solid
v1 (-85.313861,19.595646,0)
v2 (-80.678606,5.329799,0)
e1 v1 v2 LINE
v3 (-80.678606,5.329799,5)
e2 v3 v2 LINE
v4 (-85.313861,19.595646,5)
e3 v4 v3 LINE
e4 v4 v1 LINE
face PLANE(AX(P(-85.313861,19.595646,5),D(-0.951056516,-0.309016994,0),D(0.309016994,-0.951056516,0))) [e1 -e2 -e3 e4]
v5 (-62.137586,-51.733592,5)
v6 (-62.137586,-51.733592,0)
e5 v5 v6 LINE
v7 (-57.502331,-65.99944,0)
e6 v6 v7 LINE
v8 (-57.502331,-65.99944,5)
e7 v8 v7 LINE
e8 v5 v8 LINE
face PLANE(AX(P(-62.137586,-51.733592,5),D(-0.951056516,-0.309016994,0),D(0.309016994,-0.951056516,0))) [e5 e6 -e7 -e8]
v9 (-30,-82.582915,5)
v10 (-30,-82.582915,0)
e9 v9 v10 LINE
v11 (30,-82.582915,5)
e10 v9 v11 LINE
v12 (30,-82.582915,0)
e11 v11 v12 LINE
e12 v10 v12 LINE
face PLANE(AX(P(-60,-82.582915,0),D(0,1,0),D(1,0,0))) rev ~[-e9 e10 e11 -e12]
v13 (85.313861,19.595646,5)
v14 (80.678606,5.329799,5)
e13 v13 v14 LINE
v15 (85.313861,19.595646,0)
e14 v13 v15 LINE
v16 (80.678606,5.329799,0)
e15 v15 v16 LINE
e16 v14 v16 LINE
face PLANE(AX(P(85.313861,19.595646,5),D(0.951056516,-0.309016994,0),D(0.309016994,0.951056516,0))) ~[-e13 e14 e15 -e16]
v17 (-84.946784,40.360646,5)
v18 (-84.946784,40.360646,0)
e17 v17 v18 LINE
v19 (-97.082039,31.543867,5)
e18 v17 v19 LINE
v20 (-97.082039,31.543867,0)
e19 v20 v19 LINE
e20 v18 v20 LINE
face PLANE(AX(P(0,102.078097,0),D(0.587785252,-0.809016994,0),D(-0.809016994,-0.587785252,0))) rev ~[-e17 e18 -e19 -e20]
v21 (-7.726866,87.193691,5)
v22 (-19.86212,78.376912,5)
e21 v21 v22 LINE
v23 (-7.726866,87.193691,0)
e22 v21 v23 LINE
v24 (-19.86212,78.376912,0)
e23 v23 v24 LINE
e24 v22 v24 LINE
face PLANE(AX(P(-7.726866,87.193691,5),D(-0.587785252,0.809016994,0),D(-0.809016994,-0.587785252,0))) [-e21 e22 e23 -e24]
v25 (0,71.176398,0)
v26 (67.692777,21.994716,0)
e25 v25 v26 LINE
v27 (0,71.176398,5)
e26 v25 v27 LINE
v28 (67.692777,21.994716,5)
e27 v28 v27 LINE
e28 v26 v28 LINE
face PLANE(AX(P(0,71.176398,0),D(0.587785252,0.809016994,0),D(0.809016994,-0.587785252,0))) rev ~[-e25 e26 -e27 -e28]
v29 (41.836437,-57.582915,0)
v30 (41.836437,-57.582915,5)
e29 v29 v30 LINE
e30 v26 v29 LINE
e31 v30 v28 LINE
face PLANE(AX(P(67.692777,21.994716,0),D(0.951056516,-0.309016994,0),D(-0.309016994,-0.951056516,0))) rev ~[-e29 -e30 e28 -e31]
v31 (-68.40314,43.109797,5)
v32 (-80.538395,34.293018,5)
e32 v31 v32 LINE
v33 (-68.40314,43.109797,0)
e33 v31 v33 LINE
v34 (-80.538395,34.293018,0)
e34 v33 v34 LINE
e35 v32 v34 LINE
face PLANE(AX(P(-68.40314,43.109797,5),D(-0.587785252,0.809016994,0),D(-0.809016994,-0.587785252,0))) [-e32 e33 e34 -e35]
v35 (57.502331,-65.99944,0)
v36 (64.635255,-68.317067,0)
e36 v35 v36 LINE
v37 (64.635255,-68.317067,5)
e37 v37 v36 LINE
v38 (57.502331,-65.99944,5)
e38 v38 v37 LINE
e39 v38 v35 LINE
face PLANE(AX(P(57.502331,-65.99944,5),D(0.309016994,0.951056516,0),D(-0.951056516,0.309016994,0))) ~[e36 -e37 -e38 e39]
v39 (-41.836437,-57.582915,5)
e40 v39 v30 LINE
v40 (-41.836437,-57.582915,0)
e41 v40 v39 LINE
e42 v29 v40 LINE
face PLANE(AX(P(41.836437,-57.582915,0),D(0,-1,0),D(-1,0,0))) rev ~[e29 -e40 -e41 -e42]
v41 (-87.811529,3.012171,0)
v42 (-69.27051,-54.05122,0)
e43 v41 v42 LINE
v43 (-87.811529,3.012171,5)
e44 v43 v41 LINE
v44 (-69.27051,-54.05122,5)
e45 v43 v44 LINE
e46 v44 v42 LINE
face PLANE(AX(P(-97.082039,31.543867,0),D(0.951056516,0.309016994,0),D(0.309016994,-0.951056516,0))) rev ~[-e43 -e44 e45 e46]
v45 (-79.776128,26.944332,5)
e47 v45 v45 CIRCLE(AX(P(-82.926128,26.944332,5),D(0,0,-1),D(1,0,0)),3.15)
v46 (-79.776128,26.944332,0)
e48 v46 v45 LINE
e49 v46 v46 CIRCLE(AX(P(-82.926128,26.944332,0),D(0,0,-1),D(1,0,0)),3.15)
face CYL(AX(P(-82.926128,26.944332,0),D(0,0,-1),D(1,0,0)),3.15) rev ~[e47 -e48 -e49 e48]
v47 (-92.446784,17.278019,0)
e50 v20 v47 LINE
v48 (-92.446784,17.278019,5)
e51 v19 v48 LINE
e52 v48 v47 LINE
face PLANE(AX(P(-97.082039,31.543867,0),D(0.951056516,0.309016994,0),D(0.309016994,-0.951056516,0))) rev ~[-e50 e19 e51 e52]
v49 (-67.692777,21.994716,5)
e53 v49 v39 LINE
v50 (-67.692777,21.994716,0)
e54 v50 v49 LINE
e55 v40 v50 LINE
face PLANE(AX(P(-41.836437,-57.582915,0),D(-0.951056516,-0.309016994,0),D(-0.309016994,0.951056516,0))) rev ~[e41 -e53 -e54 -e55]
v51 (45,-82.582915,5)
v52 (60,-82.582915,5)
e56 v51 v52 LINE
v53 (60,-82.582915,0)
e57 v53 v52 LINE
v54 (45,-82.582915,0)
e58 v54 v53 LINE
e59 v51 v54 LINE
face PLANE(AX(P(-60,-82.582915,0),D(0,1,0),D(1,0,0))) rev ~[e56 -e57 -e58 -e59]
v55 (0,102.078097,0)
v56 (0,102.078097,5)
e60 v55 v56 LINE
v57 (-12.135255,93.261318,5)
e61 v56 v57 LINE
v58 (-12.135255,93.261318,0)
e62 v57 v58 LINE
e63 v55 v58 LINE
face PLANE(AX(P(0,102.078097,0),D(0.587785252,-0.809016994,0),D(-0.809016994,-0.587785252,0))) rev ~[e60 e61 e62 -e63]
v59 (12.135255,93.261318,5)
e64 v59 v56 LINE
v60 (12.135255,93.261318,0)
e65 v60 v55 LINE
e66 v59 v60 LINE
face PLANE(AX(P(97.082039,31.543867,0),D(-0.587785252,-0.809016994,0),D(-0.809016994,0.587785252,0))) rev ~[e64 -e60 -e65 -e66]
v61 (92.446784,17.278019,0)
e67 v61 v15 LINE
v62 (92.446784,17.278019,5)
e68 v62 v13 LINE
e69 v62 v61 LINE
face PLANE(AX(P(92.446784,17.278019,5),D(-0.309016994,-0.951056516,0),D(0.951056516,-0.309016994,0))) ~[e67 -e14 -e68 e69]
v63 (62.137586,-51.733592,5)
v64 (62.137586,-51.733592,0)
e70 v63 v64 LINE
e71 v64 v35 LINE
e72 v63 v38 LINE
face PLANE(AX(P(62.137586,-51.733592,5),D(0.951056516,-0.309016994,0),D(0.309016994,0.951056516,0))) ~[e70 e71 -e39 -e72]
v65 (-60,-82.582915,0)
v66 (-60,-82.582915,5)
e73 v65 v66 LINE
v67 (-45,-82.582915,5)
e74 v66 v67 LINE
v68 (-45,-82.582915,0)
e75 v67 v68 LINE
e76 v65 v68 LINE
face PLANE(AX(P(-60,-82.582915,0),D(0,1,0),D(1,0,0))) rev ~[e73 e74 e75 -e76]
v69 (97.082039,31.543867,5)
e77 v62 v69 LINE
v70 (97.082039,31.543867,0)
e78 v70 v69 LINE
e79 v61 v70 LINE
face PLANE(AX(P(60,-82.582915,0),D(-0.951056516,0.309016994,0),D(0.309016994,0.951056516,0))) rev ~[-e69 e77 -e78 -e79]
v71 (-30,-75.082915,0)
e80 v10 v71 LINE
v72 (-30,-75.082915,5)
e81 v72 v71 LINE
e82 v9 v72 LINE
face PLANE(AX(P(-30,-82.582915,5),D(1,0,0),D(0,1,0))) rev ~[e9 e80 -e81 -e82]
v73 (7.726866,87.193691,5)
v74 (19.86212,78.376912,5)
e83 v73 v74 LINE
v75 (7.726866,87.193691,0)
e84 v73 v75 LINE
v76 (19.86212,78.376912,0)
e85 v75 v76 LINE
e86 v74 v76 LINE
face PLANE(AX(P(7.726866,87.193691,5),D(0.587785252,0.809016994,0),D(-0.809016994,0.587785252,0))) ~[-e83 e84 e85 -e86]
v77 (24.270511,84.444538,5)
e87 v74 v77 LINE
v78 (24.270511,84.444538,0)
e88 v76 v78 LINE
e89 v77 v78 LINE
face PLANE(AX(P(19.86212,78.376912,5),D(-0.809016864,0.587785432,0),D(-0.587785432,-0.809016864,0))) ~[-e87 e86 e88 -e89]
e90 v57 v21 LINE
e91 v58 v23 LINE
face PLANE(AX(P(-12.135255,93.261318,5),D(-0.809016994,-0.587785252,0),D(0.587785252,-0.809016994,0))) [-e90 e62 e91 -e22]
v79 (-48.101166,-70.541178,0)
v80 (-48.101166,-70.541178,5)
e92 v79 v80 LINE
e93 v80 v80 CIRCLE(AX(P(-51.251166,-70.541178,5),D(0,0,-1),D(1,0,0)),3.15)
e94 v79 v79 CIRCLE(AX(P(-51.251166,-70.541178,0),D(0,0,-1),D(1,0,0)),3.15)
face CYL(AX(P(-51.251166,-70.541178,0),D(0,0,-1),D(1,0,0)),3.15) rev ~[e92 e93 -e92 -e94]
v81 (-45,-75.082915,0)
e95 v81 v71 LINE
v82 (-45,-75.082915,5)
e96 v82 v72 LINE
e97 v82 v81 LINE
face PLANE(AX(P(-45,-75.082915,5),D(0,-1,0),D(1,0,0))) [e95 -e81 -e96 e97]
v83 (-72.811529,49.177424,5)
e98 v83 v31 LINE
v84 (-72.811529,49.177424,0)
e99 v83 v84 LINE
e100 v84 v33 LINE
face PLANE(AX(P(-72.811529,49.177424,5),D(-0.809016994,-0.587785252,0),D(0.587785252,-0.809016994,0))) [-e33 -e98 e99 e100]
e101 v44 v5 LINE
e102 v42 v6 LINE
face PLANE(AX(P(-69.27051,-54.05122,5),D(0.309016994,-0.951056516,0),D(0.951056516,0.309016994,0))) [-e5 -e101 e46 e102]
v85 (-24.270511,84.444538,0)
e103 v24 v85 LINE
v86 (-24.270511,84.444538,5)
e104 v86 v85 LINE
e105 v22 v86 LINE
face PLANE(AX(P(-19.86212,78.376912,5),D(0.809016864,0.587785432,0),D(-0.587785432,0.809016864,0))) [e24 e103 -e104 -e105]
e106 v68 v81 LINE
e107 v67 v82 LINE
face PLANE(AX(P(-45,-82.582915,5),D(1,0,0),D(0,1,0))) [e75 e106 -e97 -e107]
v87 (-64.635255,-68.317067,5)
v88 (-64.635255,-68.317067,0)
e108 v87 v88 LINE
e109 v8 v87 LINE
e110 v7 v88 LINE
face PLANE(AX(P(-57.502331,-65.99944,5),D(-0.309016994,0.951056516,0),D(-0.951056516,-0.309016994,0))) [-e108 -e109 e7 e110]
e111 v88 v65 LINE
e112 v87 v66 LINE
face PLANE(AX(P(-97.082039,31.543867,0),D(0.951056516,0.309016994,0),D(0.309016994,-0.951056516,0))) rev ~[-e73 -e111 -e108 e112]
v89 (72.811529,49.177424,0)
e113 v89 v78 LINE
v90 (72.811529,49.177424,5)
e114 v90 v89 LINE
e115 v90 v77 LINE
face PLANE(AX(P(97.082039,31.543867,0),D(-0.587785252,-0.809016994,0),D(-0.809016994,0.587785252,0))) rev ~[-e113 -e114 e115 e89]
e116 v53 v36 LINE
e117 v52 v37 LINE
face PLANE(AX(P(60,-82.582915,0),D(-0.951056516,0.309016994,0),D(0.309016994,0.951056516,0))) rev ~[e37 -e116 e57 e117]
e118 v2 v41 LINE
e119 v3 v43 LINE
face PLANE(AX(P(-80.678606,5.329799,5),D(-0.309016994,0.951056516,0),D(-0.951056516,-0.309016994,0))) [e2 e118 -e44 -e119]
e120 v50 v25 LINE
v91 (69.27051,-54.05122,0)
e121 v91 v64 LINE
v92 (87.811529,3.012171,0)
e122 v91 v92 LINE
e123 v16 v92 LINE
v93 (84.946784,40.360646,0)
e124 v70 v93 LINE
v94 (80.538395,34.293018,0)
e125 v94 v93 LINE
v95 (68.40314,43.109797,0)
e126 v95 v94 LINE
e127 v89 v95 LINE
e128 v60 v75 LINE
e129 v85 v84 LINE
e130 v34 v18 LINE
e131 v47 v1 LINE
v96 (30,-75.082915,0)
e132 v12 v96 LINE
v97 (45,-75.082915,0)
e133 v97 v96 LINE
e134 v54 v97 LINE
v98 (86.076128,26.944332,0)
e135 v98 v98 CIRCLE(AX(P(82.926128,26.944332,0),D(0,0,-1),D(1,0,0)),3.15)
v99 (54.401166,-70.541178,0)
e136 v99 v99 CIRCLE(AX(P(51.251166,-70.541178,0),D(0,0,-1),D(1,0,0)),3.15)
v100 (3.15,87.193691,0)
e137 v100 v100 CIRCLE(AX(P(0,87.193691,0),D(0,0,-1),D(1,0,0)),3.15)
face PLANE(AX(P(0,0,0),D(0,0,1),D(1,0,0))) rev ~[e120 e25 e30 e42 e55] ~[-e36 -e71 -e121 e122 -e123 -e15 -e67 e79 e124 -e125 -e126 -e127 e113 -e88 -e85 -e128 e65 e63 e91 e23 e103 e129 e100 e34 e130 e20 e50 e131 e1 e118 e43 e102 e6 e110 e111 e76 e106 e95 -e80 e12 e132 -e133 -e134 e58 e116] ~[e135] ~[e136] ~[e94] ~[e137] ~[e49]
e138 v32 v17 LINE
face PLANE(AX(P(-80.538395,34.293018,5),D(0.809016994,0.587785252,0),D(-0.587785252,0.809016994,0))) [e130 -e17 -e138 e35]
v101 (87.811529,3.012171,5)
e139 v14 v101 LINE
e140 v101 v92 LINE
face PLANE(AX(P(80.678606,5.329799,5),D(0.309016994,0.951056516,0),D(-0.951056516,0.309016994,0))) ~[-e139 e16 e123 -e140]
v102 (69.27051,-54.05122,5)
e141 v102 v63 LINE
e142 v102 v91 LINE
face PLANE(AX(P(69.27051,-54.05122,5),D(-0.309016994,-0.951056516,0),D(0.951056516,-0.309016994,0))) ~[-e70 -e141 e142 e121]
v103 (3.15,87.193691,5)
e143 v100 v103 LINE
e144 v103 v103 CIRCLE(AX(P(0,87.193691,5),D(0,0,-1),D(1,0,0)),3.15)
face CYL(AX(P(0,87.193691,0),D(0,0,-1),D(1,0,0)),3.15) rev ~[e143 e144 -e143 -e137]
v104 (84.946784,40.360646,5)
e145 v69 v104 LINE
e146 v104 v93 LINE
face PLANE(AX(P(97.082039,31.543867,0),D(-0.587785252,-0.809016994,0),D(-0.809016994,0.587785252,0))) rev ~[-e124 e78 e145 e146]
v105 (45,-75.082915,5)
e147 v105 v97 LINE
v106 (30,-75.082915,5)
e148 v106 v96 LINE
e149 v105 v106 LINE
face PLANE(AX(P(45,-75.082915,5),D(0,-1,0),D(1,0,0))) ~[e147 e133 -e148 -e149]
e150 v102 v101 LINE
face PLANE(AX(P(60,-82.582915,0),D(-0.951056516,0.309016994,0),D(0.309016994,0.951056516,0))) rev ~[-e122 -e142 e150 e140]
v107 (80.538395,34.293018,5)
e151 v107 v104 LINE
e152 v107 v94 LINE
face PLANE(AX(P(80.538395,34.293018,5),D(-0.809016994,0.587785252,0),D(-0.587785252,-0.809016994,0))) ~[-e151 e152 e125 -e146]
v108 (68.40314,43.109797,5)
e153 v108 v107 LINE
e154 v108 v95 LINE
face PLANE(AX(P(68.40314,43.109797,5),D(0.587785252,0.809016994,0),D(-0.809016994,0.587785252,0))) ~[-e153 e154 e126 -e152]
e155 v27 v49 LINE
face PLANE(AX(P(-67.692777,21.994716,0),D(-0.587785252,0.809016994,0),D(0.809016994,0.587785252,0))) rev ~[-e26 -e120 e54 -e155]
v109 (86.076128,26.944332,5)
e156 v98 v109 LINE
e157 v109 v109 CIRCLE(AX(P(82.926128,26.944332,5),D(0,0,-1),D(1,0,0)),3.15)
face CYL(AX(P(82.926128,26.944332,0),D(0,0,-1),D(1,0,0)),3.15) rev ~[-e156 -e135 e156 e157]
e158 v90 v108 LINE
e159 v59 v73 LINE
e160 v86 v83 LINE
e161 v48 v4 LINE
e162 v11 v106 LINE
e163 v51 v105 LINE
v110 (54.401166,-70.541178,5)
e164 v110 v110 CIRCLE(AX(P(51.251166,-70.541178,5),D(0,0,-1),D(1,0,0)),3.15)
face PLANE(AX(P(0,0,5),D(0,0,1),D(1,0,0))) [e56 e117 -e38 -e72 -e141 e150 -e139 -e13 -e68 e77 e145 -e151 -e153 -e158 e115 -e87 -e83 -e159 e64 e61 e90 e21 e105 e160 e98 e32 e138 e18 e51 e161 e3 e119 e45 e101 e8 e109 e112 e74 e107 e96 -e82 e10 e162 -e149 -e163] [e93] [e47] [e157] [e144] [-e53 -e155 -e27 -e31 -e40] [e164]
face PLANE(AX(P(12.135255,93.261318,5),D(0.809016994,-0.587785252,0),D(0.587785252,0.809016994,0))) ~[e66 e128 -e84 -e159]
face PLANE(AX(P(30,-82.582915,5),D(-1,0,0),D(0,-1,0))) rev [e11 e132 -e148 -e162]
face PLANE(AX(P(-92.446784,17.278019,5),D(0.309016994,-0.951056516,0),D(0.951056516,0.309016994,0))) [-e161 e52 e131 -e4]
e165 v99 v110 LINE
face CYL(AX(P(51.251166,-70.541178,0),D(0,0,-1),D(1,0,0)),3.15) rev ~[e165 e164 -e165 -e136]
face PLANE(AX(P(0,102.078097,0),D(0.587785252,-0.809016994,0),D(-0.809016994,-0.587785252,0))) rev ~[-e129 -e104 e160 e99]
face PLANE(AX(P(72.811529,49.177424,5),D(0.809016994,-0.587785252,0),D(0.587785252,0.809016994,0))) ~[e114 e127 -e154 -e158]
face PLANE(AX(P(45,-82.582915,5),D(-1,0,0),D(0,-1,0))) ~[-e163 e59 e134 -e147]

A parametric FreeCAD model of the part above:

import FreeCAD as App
import Part
import Sketcher

V = App.Vector
Q = App.Units.Quantity


def add_polygon(sketch, points):
    """Adds a closed chain of lines whose ends are joined by coincident constraints."""
    first, n = sketch.GeometryCount, len(points)
    for a, b in zip(points, points[1:] + points[:1]):
        sketch.addGeometry(Part.LineSegment(App.Vector(*a, 0), App.Vector(*b, 0)), False)
    for i in range(n):
        sketch.addConstraint(Sketcher.Constraint("Coincident", first + i, 2, first + (i + 1) % n, 1))

doc = App.newDocument("Part")
body = doc.addObject("PartDesign::Body", "Body")

sketch1 = body.newObject("Sketcher::SketchObject", "Sketch")
sketch1.AttachmentSupport = (doc.getObject("XY_Plane"), [""])
sketch1.MapMode = "FlatFace"
add_polygon(sketch1, [(0, 102), (-97, 32), (-60, -83), (60, -83), (97, 32)])
sketch1.addConstraint([
    Sketcher.Constraint("Horizontal", 2),
    Sketcher.Constraint("Symmetric", 0, 2, 3, 2, -2),
    Sketcher.Constraint("PointOnObject", 4, 2, -2),
    Sketcher.Constraint("Equal", 0, 1),
    Sketcher.Constraint("Equal", 1, 3),
    Sketcher.Constraint("DistanceX", 2, 1, 2, 2, Q("120 mm")),
    Sketcher.Constraint("Angle", 0, Q("-144 deg")),
    Sketcher.Constraint("Angle", 1, Q("-72 deg")),
    Sketcher.Constraint("DistanceY", -1, 1, 0, 2, Q("31.543867 mm")),
])
pad1 = body.newObject("PartDesign::Pad", "Pad")
pad1.Profile = sketch1
pad1.Length = 5

sketch2 = body.newObject("Sketcher::SketchObject", "Sketch001")
sketch2.AttachmentSupport = (doc.getObject("XY_Plane"), [""])
sketch2.MapMode = "FlatFace"
sketch2.AttachmentOffset = App.Placement(V(0, 0, 5), App.Rotation())
add_polygon(sketch2, [(-73, 49), (-85, 40), (-81, 34), (-68, 43)])
add_polygon(sketch2, [(-8, 87), (-12, 93), (-24, 84), (-20, 78)])
add_polygon(sketch2, [(-85, 20), (-92, 17), (-88, 3), (-81, 5)])
add_polygon(sketch2, [(-62, -52), (-69, -54), (-65, -68), (-58, -66)])
add_polygon(sketch2, [(-45, -75), (-45, -83), (-30, -83), (-30, -75)])
sketch2.addConstraint([
    Sketcher.Constraint("Vertical", 16),
    Sketcher.Constraint("Horizontal", 17),
    Sketcher.Constraint("Vertical", 18),
    Sketcher.Constraint("Horizontal", 19),
    Sketcher.Constraint("Perpendicular", 0, 1),
    Sketcher.Constraint("Perpendicular", 1, 2),
    Sketcher.Constraint("Perpendicular", 2, 3),
    Sketcher.Constraint("Parallel", 3, 4),
    Sketcher.Constraint("Perpendicular", 4, 5),
    Sketcher.Constraint("Perpendicular", 5, 6),
    Sketcher.Constraint("Perpendicular", 6, 7),
    Sketcher.Constraint("Perpendicular", 8, 9),
    Sketcher.Constraint("Perpendicular", 9, 10),
    Sketcher.Constraint("Perpendicular", 10, 11),
    Sketcher.Constraint("Perpendicular", 11, 12),
    Sketcher.Constraint("Perpendicular", 12, 13),
    Sketcher.Constraint("Perpendicular", 13, 14),
    Sketcher.Constraint("Perpendicular", 14, 15),
    Sketcher.Constraint("Equal", 3, 4),
    Sketcher.Constraint("Equal", 2, 5),
    Sketcher.Constraint("Equal", 6, 8),
    Sketcher.Constraint("Equal", 7, 9),
    Sketcher.Constraint("Equal", 10, 12),
    Sketcher.Constraint("Equal", 11, 13),
    Sketcher.Constraint("DistanceX", 17, 1, 17, 2, Q("15 mm")),
    Sketcher.Constraint("Angle", 0, Q("-144 deg")),
    Sketcher.Constraint("Angle", 8, Q("-162 deg")),
    Sketcher.Constraint("Distance", 0, Q("15 mm")),
    Sketcher.Constraint("DistanceY", 16, 2, 16, 1, Q("7.5 mm")),
    Sketcher.Constraint("DistanceX", 16, 2, -1, 1, Q("45 mm")),
    Sketcher.Constraint("DistanceX", 9, 2, 3, 2, Q("15 mm")),
    Sketcher.Constraint("Distance", 1, Q("7.5 mm")),
    Sketcher.Constraint("DistanceY", 10, 2, 2, 2, Q("37.779998 mm")),
    Sketcher.Constraint("DistanceY", -1, 1, 10, 2, Q("5.329799 mm")),
    Sketcher.Constraint("DistanceY", 1, 2, 4, 2, Q("58.9683 mm")),
    Sketcher.Constraint("DistanceX", 9, 2, 14, 2, Q("30.309198 mm")),
    Sketcher.Constraint("DistanceX", 2, 2, -1, 1, Q("68.40314 mm")),
    Sketcher.Constraint("DistanceX", 5, 2, -1, 1, Q("24.270511 mm")),
    Sketcher.Constraint("DistanceY", 12, 2, -1, 1, Q("54.05122 mm")),
    Sketcher.Constraint("DistanceY", 16, 2, -1, 1, Q("82.582915 mm")),
])
pocket1 = body.newObject("PartDesign::Pocket", "Pocket")
pocket1.Profile = sketch2
pocket1.Type = "ThroughAll"
doc.recompute()

mirrored = body.newObject("PartDesign::Mirrored", "Mirrored")
mirrored.Originals = [pocket1]
mirrored.MirrorPlane = (doc.getObject("YZ_Plane"), [""])
body.Tip = mirrored

sketch3 = body.newObject("Sketcher::SketchObject", "Sketch002")
sketch3.AttachmentSupport = (doc.getObject("XY_Plane"), [""])
sketch3.MapMode = "FlatFace"
sketch3.addGeometry([
    Part.Circle(V(-51.3, -70.5, 0), V(0, 0, 1), 3.1),
    Part.Circle(V(-82.9, 26.9, 0), V(0, 0, 1), 3.1),
    Part.Circle(V(0, 87.2, 0), V(0, 0, 1), 3.1),
    Part.Circle(V(82.9, 26.9, 0), V(0, 0, 1), 3.1),
    Part.Circle(V(51.3, -70.5, 0), V(0, 0, 1), 3.1),
], False)
sketch3.addConstraint([
    Sketcher.Constraint("Equal", 0, 1),
    Sketcher.Constraint("Equal", 1, 2),
    Sketcher.Constraint("Equal", 2, 3),
    Sketcher.Constraint("Equal", 3, 4),
    Sketcher.Constraint("Symmetric", 1, 3, 3, 3, -2),
    Sketcher.Constraint("Symmetric", 0, 3, 4, 3, -2),
    Sketcher.Constraint("PointOnObject", 2, 3, -2),
    Sketcher.Constraint("Diameter", 0, Q("6.3 mm")),
    Sketcher.Constraint("DistanceY", -1, 1, 2, 3, Q("87.193691 mm")),
    Sketcher.Constraint("DistanceY", 0, 3, 1, 3, Q("97.48551 mm")),
    Sketcher.Constraint("DistanceY", 1, 3, 2, 3, Q("60.249359 mm")),
    Sketcher.Constraint("DistanceX", 0, 3, 4, 3, Q("102.502331 mm")),
    Sketcher.Constraint("DistanceX", 1, 3, -1, 1, Q("82.926128 mm")),
])
pocket2 = body.newObject("PartDesign::Pocket", "Pocket001")
pocket2.Profile = sketch3
pocket2.Type = "ThroughAll"
pocket2.Reversed = True

sketch4 = body.newObject("Sketcher::SketchObject", "Sketch003")
sketch4.AttachmentSupport = (doc.getObject("XY_Plane"), [""])
sketch4.MapMode = "FlatFace"
add_polygon(sketch4, [(0, 71), (68, 22), (42, -58), (-42, -58), (-68, 22)])
sketch4.addConstraint([
    Sketcher.Constraint("Horizontal", 2),
    Sketcher.Constraint("Symmetric", 0, 2, 3, 2, -2),
    Sketcher.Constraint("PointOnObject", 4, 2, -2),
    Sketcher.Constraint("Equal", 0, 1),
    Sketcher.Constraint("Equal", 1, 3),
    Sketcher.Constraint("Angle", 0, Q("-36 deg")),
    Sketcher.Constraint("Angle", 1, Q("-108 deg")),
    Sketcher.Constraint("DistanceX", 2, 2, 2, 1, Q("83.672874 mm")),
    Sketcher.Constraint("DistanceY", -1, 1, 0, 2, Q("21.994716 mm")),
])
pocket3 = body.newObject("PartDesign::Pocket", "Pocket002")
pocket3.Profile = sketch4
pocket3.Type = "ThroughAll"
pocket3.Reversed = True

doc.recompute()
